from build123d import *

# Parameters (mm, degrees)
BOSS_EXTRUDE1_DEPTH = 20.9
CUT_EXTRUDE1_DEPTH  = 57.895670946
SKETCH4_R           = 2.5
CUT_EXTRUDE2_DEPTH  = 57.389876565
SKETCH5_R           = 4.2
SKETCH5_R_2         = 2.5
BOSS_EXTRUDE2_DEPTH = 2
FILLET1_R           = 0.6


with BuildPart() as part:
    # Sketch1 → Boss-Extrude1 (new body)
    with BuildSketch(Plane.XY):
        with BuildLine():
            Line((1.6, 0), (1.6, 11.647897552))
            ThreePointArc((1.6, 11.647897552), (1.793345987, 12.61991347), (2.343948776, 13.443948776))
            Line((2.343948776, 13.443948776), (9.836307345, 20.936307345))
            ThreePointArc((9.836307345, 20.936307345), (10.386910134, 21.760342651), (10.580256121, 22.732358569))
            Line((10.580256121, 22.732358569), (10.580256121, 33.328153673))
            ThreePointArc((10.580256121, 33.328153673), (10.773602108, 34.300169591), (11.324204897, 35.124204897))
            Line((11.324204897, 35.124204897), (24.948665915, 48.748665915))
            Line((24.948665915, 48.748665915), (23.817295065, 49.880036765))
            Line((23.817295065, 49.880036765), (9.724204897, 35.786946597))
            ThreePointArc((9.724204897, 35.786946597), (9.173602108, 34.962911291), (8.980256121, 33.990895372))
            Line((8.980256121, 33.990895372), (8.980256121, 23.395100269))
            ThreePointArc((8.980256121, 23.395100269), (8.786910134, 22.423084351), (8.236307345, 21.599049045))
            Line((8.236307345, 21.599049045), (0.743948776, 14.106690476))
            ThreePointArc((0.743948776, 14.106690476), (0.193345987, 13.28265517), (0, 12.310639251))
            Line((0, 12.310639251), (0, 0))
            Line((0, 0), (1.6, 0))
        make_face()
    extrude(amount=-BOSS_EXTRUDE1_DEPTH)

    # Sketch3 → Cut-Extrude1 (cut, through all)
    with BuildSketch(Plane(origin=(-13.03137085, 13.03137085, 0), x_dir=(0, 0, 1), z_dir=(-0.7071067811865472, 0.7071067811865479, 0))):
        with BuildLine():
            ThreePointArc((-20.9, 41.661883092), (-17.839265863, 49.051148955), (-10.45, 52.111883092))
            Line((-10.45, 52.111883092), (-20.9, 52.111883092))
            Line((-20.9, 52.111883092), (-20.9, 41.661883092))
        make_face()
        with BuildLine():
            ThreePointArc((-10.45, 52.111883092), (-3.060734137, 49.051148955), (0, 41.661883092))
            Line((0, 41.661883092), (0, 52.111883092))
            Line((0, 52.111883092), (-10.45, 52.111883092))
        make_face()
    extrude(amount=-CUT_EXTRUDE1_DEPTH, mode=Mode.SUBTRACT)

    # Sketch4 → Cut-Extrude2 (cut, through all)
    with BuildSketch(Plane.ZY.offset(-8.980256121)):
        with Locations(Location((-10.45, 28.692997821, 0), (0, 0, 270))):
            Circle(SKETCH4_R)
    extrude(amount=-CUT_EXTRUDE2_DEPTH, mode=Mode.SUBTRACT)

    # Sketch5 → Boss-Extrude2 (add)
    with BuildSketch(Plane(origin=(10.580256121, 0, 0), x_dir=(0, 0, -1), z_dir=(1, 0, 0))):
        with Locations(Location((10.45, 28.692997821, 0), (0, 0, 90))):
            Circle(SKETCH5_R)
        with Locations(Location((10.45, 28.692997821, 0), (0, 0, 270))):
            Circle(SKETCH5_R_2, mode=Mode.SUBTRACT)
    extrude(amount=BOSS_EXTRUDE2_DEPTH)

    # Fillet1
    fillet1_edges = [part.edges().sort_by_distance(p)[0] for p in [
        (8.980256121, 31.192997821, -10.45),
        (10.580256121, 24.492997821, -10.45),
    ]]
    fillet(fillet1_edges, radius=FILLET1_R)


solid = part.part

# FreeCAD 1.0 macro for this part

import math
import FreeCAD as App
import Part
import Sketcher

V = App.Vector
Q = App.Units.Quantity


def edges_at(feature, points):
    """Names of the edges that pass closest to the given points."""
    edges = feature.Shape.Edges
    near = lambda p: min(range(len(edges)), key=lambda i: edges[i].distToShape(Part.Vertex(*p))[0])
    return sorted({f"Edge{near(p) + 1}" for p in points})

doc = App.newDocument("Part")
body = doc.addObject("PartDesign::Body", "Body")

sketch1 = doc.addObject("Sketcher::SketchObject", "Sketch")
body.addObject(sketch1)
sketch1.AttachmentSupport = (doc.XY_Plane, [""])
sketch1.MapMode = "FlatFace"
sketch1.addGeometry([
    Part.LineSegment(V(1.6, 0, 0), V(1.6, 11.6, 0)),
    Part.ArcOfCircle(Part.Circle(V(4.1, 11.6, 0), V(0, 0, 1), 2.5), math.radians(135), math.radians(180)),
    Part.LineSegment(V(2.3, 13.4, 0), V(9.8, 20.9, 0)),
    Part.ArcOfCircle(Part.Circle(V(8, 22.7, 0), V(0, 0, 1), 2.5), math.radians(-45), math.radians(0)),
    Part.LineSegment(V(10.6, 22.7, 0), V(10.6, 33.3, 0)),
    Part.ArcOfCircle(Part.Circle(V(13.1, 33.3, 0), V(0, 0, 1), 2.5), math.radians(135), math.radians(180)),
    Part.LineSegment(V(11.3, 35.1, 0), V(24.9, 48.7, 0)),
    Part.LineSegment(V(24.9, 48.7, 0), V(23.8, 49.9, 0)),
    Part.LineSegment(V(23.8, 49.9, 0), V(9.7, 35.8, 0)),
    Part.ArcOfCircle(Part.Circle(V(11.5, 34, 0), V(0, 0, 1), 2.5), math.radians(135), math.radians(180)),
    Part.LineSegment(V(9, 34, 0), V(9, 23.4, 0)),
    Part.ArcOfCircle(Part.Circle(V(6.4, 23.4, 0), V(0, 0, 1), 2.5), math.radians(-45), math.radians(0)),
    Part.LineSegment(V(8.2, 21.6, 0), V(0.7, 14.1, 0)),
    Part.ArcOfCircle(Part.Circle(V(2.5, 12.3, 0), V(0, 0, 1), 2.5), math.radians(135), math.radians(180)),
    Part.LineSegment(V(0, 12.3, 0), V(0, 0, 0)),
    Part.LineSegment(V(0, 0, 0), V(1.6, 0, 0)),
], False)
sketch1.addConstraint([
    Sketcher.Constraint("Tangent", 0, 2, 1, 2),
    Sketcher.Constraint("Tangent", 1, 1, 2, 1),
    Sketcher.Constraint("Tangent", 2, 2, 3, 1),
    Sketcher.Constraint("Tangent", 3, 2, 4, 1),
    Sketcher.Constraint("Tangent", 4, 2, 5, 2),
    Sketcher.Constraint("Tangent", 5, 1, 6, 1),
    Sketcher.Constraint("Coincident", 6, 2, 7, 1),
    Sketcher.Constraint("Coincident", 7, 2, 8, 1),
    Sketcher.Constraint("Tangent", 8, 2, 9, 1),
    Sketcher.Constraint("Tangent", 9, 2, 10, 1),
    Sketcher.Constraint("Tangent", 10, 2, 11, 2),
    Sketcher.Constraint("Tangent", 11, 1, 12, 1),
    Sketcher.Constraint("Tangent", 12, 2, 13, 1),
    Sketcher.Constraint("Tangent", 13, 2, 14, 1),
    Sketcher.Constraint("Coincident", 14, 2, 15, 1),
    Sketcher.Constraint("Coincident", 15, 2, 0, 1),
    Sketcher.Constraint("Vertical", 0),
    Sketcher.Constraint("Vertical", 4),
    Sketcher.Constraint("Vertical", 10),
    Sketcher.Constraint("Vertical", 14),
    Sketcher.Constraint("Horizontal", 15),
    Sketcher.Constraint("Coincident", 14, 2, -1, 1),
    Sketcher.Constraint("Equal", 1, 3),
    Sketcher.Constraint("Equal", 3, 5),
    Sketcher.Constraint("Equal", 5, 9),
    Sketcher.Constraint("Equal", 9, 11),
    Sketcher.Constraint("Equal", 11, 13),
    Sketcher.Constraint("Parallel", 2, 6),
    Sketcher.Constraint("Perpendicular", 6, 7),
    Sketcher.Constraint("Perpendicular", 7, 8),
    Sketcher.Constraint("Parallel", 8, 12),
    Sketcher.Constraint("Equal", 4, 10),
    Sketcher.Constraint("Equal", 2, 12),
    Sketcher.Constraint("Angle", 2, Q("45 deg")),
    Sketcher.Constraint("Radius", 1, 2.54),
    Sketcher.Constraint("DistanceX", 15, 1, 15, 2, 1.6),
    Sketcher.Constraint("Distance", 7, 1.6),
    Sketcher.Constraint("DistanceY", 14, 2, 14, 1, 12.310639),
    Sketcher.Constraint("DistanceY", -1, 1, 11, 3, 23.3951),
    Sketcher.Constraint("Distance", 8, 19.930639),
    Sketcher.Constraint("DistanceY", 4, 1, 4, 2, 10.595795),
])
pad1 = doc.addObject("PartDesign::Pad", "Pad")
body.addObject(pad1)
pad1.Profile = sketch1
pad1.Length = 20.9
pad1.Reversed = True

sketch2 = doc.addObject("Sketcher::SketchObject", "Sketch001")
body.addObject(sketch2)
sketch2.Placement = App.Placement(V(-13.031371, 13.031371, 0), App.Rotation(V(0, 0, 1), V(0.707106781, 0.707106781, 0), V(-0.707106781, 0.707106781, 0), "ZXY"))
sketch2.addGeometry([
    Part.ArcOfCircle(Part.Circle(V(-10, 42, 0), V(0, 0, 1), 10), math.radians(90), math.radians(180)),
    Part.LineSegment(V(-10, 52, 0), V(-21, 52, 0)),
    Part.LineSegment(V(-21, 52, 0), V(-21, 42, 0)),
    Part.ArcOfCircle(Part.Circle(V(-10, 42, 0), V(0, 0, 1), 10), math.radians(0), math.radians(90)),
    Part.LineSegment(V(0, 42, 0), V(0, 52, 0)),
    Part.LineSegment(V(0, 52, 0), V(-10, 52, 0)),
], False)
sketch2.addConstraint([
    Sketcher.Constraint("Tangent", 0, 1, 1, 1),
    Sketcher.Constraint("Coincident", 1, 2, 2, 1),
    Sketcher.Constraint("Tangent", 2, 2, 0, 2),
    Sketcher.Constraint("Tangent", 3, 1, 4, 1),
    Sketcher.Constraint("Coincident", 4, 2, 5, 1),
    Sketcher.Constraint("Tangent", 5, 2, 3, 2),
    Sketcher.Constraint("Horizontal", 1),
    Sketcher.Constraint("Vertical", 2),
    Sketcher.Constraint("Vertical", 4),
    Sketcher.Constraint("Horizontal", 5),
    Sketcher.Constraint("Coincident", 3, 3, 0, 3),
    Sketcher.Constraint("Equal", 0, 3),
    Sketcher.Constraint("PointOnObject", 3, 1, -2),
    Sketcher.Constraint("Radius", 0, 10.45),
    Sketcher.Constraint("DistanceY", -1, 1, 0, 3, 41.661883),
])
pocket1 = doc.addObject("PartDesign::Pocket", "Pocket")
body.addObject(pocket1)
pocket1.Profile = sketch2
pocket1.Length = 57.895671

sketch3 = doc.addObject("Sketcher::SketchObject", "Sketch002")
body.addObject(sketch3)
sketch3.AttachmentSupport = (doc.YZ_Plane, [""])
sketch3.MapMode = "FlatFace"
sketch3.AttachmentOffset = App.Placement(V(0, 0, 8.980256), App.Rotation())
sketch3.addGeometry(Part.Circle(V(28.7, -10.4, 0), V(0, 0, 1), 2.5), False)
sketch3.addConstraint([
    Sketcher.Constraint("Diameter", 0, 5.0),
    Sketcher.Constraint("DistanceY", 0, 3, -1, 1, 10.45),
    Sketcher.Constraint("DistanceX", -1, 1, 0, 3, 28.692998),
])
pocket2 = doc.addObject("PartDesign::Pocket", "Pocket001")
body.addObject(pocket2)
pocket2.Profile = sketch3
pocket2.Type = "ThroughAll"
pocket2.Reversed = True

sketch4 = doc.addObject("Sketcher::SketchObject", "Sketch003")
body.addObject(sketch4)
sketch4.AttachmentSupport = (doc.YZ_Plane, [""])
sketch4.MapMode = "FlatFace"
sketch4.AttachmentOffset = App.Placement(V(0, 0, 10.580256), App.Rotation())
sketch4.addGeometry([
    Part.Circle(V(28.7, -10.4, 0), V(0, 0, 1), 4.2),
    Part.Circle(V(28.7, -10.4, 0), V(0, 0, 1), 2.5),
], False)
sketch4.addConstraint([
    Sketcher.Constraint("Coincident", 1, 3, 0, 3),
    Sketcher.Constraint("Diameter", 1, 5.0),
    Sketcher.Constraint("Diameter", 0, 8.4),
    Sketcher.Constraint("DistanceY", 0, 3, -1, 1, 10.45),
    Sketcher.Constraint("DistanceX", -1, 1, 0, 3, 28.692998),
])
pad2 = doc.addObject("PartDesign::Pad", "Pad001")
body.addObject(pad2)
pad2.Profile = sketch4
pad2.Length = 2
doc.recompute()

fillet = doc.addObject("PartDesign::Fillet", "Fillet")
body.addObject(fillet)
fillet.Base = (pad2, edges_at(pad2, [(8.98, 31.193, -10.45), (10.58, 24.493, -10.45)]))
fillet.Radius = 0.6

doc.recompute()
